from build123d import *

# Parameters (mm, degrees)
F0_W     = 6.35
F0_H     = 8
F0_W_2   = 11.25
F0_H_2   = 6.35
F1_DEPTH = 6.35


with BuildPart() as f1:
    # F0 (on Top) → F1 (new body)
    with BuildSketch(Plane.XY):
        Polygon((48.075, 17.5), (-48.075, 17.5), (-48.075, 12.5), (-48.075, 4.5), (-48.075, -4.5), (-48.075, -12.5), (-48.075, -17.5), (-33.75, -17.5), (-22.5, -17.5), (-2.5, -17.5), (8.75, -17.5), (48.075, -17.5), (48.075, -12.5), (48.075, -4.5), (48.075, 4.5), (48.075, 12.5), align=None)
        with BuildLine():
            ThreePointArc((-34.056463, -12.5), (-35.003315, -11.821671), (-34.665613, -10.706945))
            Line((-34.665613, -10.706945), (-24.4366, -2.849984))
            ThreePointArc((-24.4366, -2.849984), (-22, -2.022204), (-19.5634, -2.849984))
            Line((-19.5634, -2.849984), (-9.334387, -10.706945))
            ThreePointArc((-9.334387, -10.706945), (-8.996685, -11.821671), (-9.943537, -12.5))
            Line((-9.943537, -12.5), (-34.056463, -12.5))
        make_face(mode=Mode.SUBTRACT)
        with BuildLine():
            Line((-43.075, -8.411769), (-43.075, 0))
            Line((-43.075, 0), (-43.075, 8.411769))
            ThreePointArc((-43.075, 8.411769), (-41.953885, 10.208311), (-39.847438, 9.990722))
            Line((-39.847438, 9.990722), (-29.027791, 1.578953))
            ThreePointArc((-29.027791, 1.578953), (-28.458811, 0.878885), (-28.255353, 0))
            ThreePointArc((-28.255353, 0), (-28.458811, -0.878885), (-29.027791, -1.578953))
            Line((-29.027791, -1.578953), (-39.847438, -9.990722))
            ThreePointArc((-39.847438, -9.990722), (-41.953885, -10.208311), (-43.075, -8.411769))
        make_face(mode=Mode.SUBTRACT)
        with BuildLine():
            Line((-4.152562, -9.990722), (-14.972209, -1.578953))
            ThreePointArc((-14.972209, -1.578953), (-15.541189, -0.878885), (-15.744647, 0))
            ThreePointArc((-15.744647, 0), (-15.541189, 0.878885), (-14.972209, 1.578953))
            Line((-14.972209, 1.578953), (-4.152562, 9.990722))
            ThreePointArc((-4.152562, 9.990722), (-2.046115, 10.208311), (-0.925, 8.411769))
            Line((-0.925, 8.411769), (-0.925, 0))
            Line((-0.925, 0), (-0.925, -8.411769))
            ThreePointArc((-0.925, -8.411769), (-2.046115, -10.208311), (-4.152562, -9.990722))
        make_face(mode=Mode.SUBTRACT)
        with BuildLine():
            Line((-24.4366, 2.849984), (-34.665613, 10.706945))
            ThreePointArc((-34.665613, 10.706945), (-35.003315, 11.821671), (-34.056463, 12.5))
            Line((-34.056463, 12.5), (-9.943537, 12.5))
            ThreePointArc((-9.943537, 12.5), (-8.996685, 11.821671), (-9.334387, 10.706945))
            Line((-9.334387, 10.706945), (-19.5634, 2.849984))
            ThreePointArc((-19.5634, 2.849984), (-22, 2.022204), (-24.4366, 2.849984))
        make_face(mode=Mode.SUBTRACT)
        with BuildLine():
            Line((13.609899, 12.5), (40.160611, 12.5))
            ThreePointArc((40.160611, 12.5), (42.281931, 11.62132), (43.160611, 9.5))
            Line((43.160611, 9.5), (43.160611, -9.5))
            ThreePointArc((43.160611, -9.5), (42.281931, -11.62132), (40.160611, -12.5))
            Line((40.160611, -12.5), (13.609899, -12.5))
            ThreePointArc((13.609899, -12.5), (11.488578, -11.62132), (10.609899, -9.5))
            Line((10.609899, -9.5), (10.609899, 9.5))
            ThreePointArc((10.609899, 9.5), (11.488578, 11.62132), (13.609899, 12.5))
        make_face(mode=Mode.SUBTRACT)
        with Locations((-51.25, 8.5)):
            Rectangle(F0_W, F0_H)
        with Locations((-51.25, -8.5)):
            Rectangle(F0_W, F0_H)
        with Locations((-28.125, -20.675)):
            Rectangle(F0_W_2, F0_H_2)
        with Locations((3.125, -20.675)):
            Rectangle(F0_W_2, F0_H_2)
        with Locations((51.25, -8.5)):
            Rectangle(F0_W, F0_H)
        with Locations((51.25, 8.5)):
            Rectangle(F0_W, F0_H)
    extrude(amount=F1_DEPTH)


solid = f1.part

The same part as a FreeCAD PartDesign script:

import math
import FreeCAD as App
import Part
import Sketcher
from FreeCAD import Vector
Q = App.Units.Quantity


def add_polygon(sketch, points):
    """Adds a closed chain of lines whose ends are joined by coincident constraints."""
    first, n = sketch.GeometryCount, len(points)
    for a, b in zip(points, points[1:] + points[:1]):
        sketch.addGeometry(Part.LineSegment(App.Vector(*a, 0), App.Vector(*b, 0)), False)
    for i in range(n):
        sketch.addConstraint(Sketcher.Constraint("Coincident", first + i, 2, first + (i + 1) % n, 1))

doc = App.newDocument("Part")
body = doc.addObject("PartDesign::Body", "Body")

# Sketch on XY plane
sketch1 = body.newObject("Sketcher::SketchObject", "Sketch")
sketch1.AttachmentSupport = (doc.getObject("XY_Plane"), [""])
sketch1.MapMode = "FlatFace"
add_polygon(sketch1, [(48.1, 17.5), (-48.1, 17.5), (-48.1, 12.5), (-54.4, 12.5), (-54.4, 4.5), (-48.1, 4.5), (-48.1, -4.5), (-54.4, -4.5), (-54.4, -12.5), (-48.1, -12.5), (-48.1, -17.5), (-33.8, -17.5), (-33.8, -23.9), (-22.5, -23.9), (-22.5, -17.5), (-2.5, -17.5), (-2.5, -23.9), (8.8, -23.9), (8.8, -17.5), (48.1, -17.5), (48.1, -12.5), (54.4, -12.5), (54.4, -4.5), (48.1, -4.5), (48.1, 4.5), (54.4, 4.5), (54.4, 12.5), (48.1, 12.5)])  # lines 0-27
sketch1.addGeometry(Part.LineSegment(Vector(-9.9, -12.5, 0), Vector(-34.1, -12.5, 0)), False)  # 28
sketch1.addGeometry(Part.ArcOfCircle(Part.Circle(Vector(-34.1, -11.5, 0), Vector(0, 0, 1), 1), math.radians(128), math.radians(270)), False)  # 29
sketch1.addGeometry(Part.LineSegment(Vector(-34.7, -10.7, 0), Vector(-24.4, -2.8, 0)), False)  # 30
sketch1.addGeometry(Part.ArcOfCircle(Part.Circle(Vector(-22, -6, 0), Vector(0, 0, 1), 4), math.radians(52), math.radians(128)), False)  # 31
sketch1.addGeometry(Part.LineSegment(Vector(-19.6, -2.8, 0), Vector(-9.3, -10.7, 0)), False)  # 32
sketch1.addGeometry(Part.ArcOfCircle(Part.Circle(Vector(-9.9, -11.5, 0), Vector(0, 0, 1), 1), math.radians(-90), math.radians(52)), False)  # 33
sketch1.addGeometry(Part.ArcOfCircle(Part.Circle(Vector(-2.9, -8.4, 0), Vector(0, 0, 1), 2), math.radians(-128), math.radians(0)), False)  # 34
sketch1.addGeometry(Part.LineSegment(Vector(-4.2, -10, 0), Vector(-15, -1.6, 0)), False)  # 35
sketch1.addGeometry(Part.ArcOfCircle(Part.Circle(Vector(-13.7, 0, 0), Vector(0, 0, 1), 2), math.radians(180), math.radians(232)), False)  # 36
sketch1.addGeometry(Part.ArcOfCircle(Part.Circle(Vector(-13.7, 0, 0), Vector(0, 0, 1), 2), math.radians(128), math.radians(180)), False)  # 37
sketch1.addGeometry(Part.LineSegment(Vector(-15, 1.6, 0), Vector(-4.2, 10, 0)), False)  # 38
sketch1.addGeometry(Part.ArcOfCircle(Part.Circle(Vector(-2.9, 8.4, 0), Vector(0, 0, 1), 2), math.radians(0), math.radians(128)), False)  # 39
sketch1.addGeometry(Part.LineSegment(Vector(-0.9, 8.4, 0), Vector(-0.9, -8.4, 0)), False)  # 40
sketch1.addGeometry(Part.ArcOfCircle(Part.Circle(Vector(13.6, 9.5, 0), Vector(0, 0, 1), 3), math.radians(90), math.radians(180)), False)  # 41
sketch1.addGeometry(Part.LineSegment(Vector(13.6, 12.5, 0), Vector(40.2, 12.5, 0)), False)  # 42
sketch1.addGeometry(Part.ArcOfCircle(Part.Circle(Vector(40.2, 9.5, 0), Vector(0, 0, 1), 3), math.radians(0), math.radians(90)), False)  # 43
sketch1.addGeometry(Part.LineSegment(Vector(43.2, 9.5, 0), Vector(43.2, -9.5, 0)), False)  # 44
sketch1.addGeometry(Part.ArcOfCircle(Part.Circle(Vector(40.2, -9.5, 0), Vector(0, 0, 1), 3), math.radians(-90), math.radians(0)), False)  # 45
sketch1.addGeometry(Part.LineSegment(Vector(40.2, -12.5, 0), Vector(13.6, -12.5, 0)), False)  # 46
sketch1.addGeometry(Part.ArcOfCircle(Part.Circle(Vector(13.6, -9.5, 0), Vector(0, 0, 1), 3), math.radians(180), math.radians(270)), False)  # 47
sketch1.addGeometry(Part.LineSegment(Vector(10.6, -9.5, 0), Vector(10.6, 9.5, 0)), False)  # 48
sketch1.addGeometry(Part.ArcOfCircle(Part.Circle(Vector(-41.1, -8.4, 0), Vector(0, 0, 1), 2), math.radians(180), math.radians(308)), False)  # 49
sketch1.addGeometry(Part.LineSegment(Vector(-43.1, -8.4, 0), Vector(-43.1, 8.4, 0)), False)  # 50
sketch1.addGeometry(Part.ArcOfCircle(Part.Circle(Vector(-41.1, 8.4, 0), Vector(0, 0, 1), 2), math.radians(52), math.radians(180)), False)  # 51
sketch1.addGeometry(Part.LineSegment(Vector(-39.8, 10, 0), Vector(-29, 1.6, 0)), False)  # 52
sketch1.addGeometry(Part.ArcOfCircle(Part.Circle(Vector(-30.3, 0, 0), Vector(0, 0, 1), 2), math.radians(0), math.radians(52)), False)  # 53
sketch1.addGeometry(Part.ArcOfCircle(Part.Circle(Vector(-30.3, 0, 0), Vector(0, 0, 1), 2), math.radians(-52), math.radians(0)), False)  # 54
sketch1.addGeometry(Part.LineSegment(Vector(-29, -1.6, 0), Vector(-39.8, -10, 0)), False)  # 55
sketch1.addGeometry(Part.ArcOfCircle(Part.Circle(Vector(-22, 6, 0), Vector(0, 0, 1), 4), math.radians(-128), math.radians(-52)), False)  # 56
sketch1.addGeometry(Part.LineSegment(Vector(-24.4, 2.8, 0), Vector(-34.7, 10.7, 0)), False)  # 57
sketch1.addGeometry(Part.ArcOfCircle(Part.Circle(Vector(-34.1, 11.5, 0), Vector(0, 0, 1), 1), math.radians(90), math.radians(232)), False)  # 58
sketch1.addGeometry(Part.LineSegment(Vector(-34.1, 12.5, 0), Vector(-9.9, 12.5, 0)), False)  # 59
sketch1.addGeometry(Part.ArcOfCircle(Part.Circle(Vector(-9.9, 11.5, 0), Vector(0, 0, 1), 1), math.radians(-52), math.radians(90)), False)  # 60
sketch1.addGeometry(Part.LineSegment(Vector(-9.3, 10.7, 0), Vector(-19.6, 2.8, 0)), False)  # 61
sketch1.addConstraint(Sketcher.Constraint("Tangent", 28, 2, 29, 2))
sketch1.addConstraint(Sketcher.Constraint("Tangent", 29, 1, 30, 1))
sketch1.addConstraint(Sketcher.Constraint("Tangent", 30, 2, 31, 2))
sketch1.addConstraint(Sketcher.Constraint("Tangent", 31, 1, 32, 1))
sketch1.addConstraint(Sketcher.Constraint("Tangent", 32, 2, 33, 2))
sketch1.addConstraint(Sketcher.Constraint("Tangent", 33, 1, 28, 1))
sketch1.addConstraint(Sketcher.Constraint("Tangent", 34, 1, 35, 1))
sketch1.addConstraint(Sketcher.Constraint("Tangent", 35, 2, 36, 2))
sketch1.addConstraint(Sketcher.Constraint("Tangent", 36, 1, 37, 2))
sketch1.addConstraint(Sketcher.Constraint("Tangent", 37, 1, 38, 1))
sketch1.addConstraint(Sketcher.Constraint("Tangent", 38, 2, 39, 2))
sketch1.addConstraint(Sketcher.Constraint("Tangent", 39, 1, 40, 1))
sketch1.addConstraint(Sketcher.Constraint("Tangent", 40, 2, 34, 2))
sketch1.addConstraint(Sketcher.Constraint("Tangent", 41, 1, 42, 1))
sketch1.addConstraint(Sketcher.Constraint("Tangent", 42, 2, 43, 2))
sketch1.addConstraint(Sketcher.Constraint("Tangent", 43, 1, 44, 1))
sketch1.addConstraint(Sketcher.Constraint("Tangent", 44, 2, 45, 2))
sketch1.addConstraint(Sketcher.Constraint("Tangent", 45, 1, 46, 1))
sketch1.addConstraint(Sketcher.Constraint("Tangent", 46, 2, 47, 2))
sketch1.addConstraint(Sketcher.Constraint("Tangent", 47, 1, 48, 1))
sketch1.addConstraint(Sketcher.Constraint("Tangent", 48, 2, 41, 2))
sketch1.addConstraint(Sketcher.Constraint("Tangent", 49, 1, 50, 1))
sketch1.addConstraint(Sketcher.Constraint("Tangent", 50, 2, 51, 2))
sketch1.addConstraint(Sketcher.Constraint("Tangent", 51, 1, 52, 1))
sketch1.addConstraint(Sketcher.Constraint("Tangent", 52, 2, 53, 2))
sketch1.addConstraint(Sketcher.Constraint("Tangent", 53, 1, 54, 2))
sketch1.addConstraint(Sketcher.Constraint("Tangent", 54, 1, 55, 1))
sketch1.addConstraint(Sketcher.Constraint("Tangent", 55, 2, 49, 2))
sketch1.addConstraint(Sketcher.Constraint("Tangent", 56, 1, 57, 1))
sketch1.addConstraint(Sketcher.Constraint("Tangent", 57, 2, 58, 2))
sketch1.addConstraint(Sketcher.Constraint("Tangent", 58, 1, 59, 1))
sketch1.addConstraint(Sketcher.Constraint("Tangent", 59, 2, 60, 2))
sketch1.addConstraint(Sketcher.Constraint("Tangent", 60, 1, 61, 1))
sketch1.addConstraint(Sketcher.Constraint("Tangent", 61, 2, 56, 2))
sketch1.addConstraint(Sketcher.Constraint("Horizontal", 0))
sketch1.addConstraint(Sketcher.Constraint("Vertical", 1))
sketch1.addConstraint(Sketcher.Constraint("Horizontal", 2))
sketch1.addConstraint(Sketcher.Constraint("Vertical", 3))
sketch1.addConstraint(Sketcher.Constraint("Horizontal", 4))
sketch1.addConstraint(Sketcher.Constraint("Vertical", 5))
sketch1.addConstraint(Sketcher.Constraint("Horizontal", 6))
sketch1.addConstraint(Sketcher.Constraint("Vertical", 7))
sketch1.addConstraint(Sketcher.Constraint("Horizontal", 8))
sketch1.addConstraint(Sketcher.Constraint("Vertical", 9))
sketch1.addConstraint(Sketcher.Constraint("Horizontal", 10))
sketch1.addConstraint(Sketcher.Constraint("Vertical", 11))
sketch1.addConstraint(Sketcher.Constraint("Horizontal", 12))
sketch1.addConstraint(Sketcher.Constraint("Vertical", 13))
sketch1.addConstraint(Sketcher.Constraint("Horizontal", 14))
sketch1.addConstraint(Sketcher.Constraint("Vertical", 15))
sketch1.addConstraint(Sketcher.Constraint("Horizontal", 16))
sketch1.addConstraint(Sketcher.Constraint("Vertical", 17))
sketch1.addConstraint(Sketcher.Constraint("Horizontal", 18))
sketch1.addConstraint(Sketcher.Constraint("Vertical", 19))
sketch1.addConstraint(Sketcher.Constraint("Horizontal", 20))
sketch1.addConstraint(Sketcher.Constraint("Vertical", 21))
sketch1.addConstraint(Sketcher.Constraint("Horizontal", 22))
sketch1.addConstraint(Sketcher.Constraint("Vertical", 23))
sketch1.addConstraint(Sketcher.Constraint("Horizontal", 24))
sketch1.addConstraint(Sketcher.Constraint("Vertical", 25))
sketch1.addConstraint(Sketcher.Constraint("Horizontal", 26))
sketch1.addConstraint(Sketcher.Constraint("Vertical", 27))
sketch1.addConstraint(Sketcher.Constraint("Horizontal", 28))
sketch1.addConstraint(Sketcher.Constraint("Vertical", 40))
sketch1.addConstraint(Sketcher.Constraint("Horizontal", 42))
sketch1.addConstraint(Sketcher.Constraint("Vertical", 44))
sketch1.addConstraint(Sketcher.Constraint("Horizontal", 46))
sketch1.addConstraint(Sketcher.Constraint("Vertical", 48))
sketch1.addConstraint(Sketcher.Constraint("Vertical", 50))
sketch1.addConstraint(Sketcher.Constraint("Horizontal", 59))
sketch1.addConstraint(Sketcher.Constraint("Equal", 29, 33))
sketch1.addConstraint(Sketcher.Constraint("Equal", 36, 37))
sketch1.addConstraint(Sketcher.Constraint("Equal", 34, 39))
sketch1.addConstraint(Sketcher.Constraint("Equal", 41, 43))
sketch1.addConstraint(Sketcher.Constraint("Equal", 43, 45))
sketch1.addConstraint(Sketcher.Constraint("Equal", 45, 47))
sketch1.addConstraint(Sketcher.Constraint("Equal", 39, 49))
sketch1.addConstraint(Sketcher.Constraint("Equal", 49, 51))
sketch1.addConstraint(Sketcher.Constraint("Equal", 37, 53))
sketch1.addConstraint(Sketcher.Constraint("Equal", 53, 54))
sketch1.addConstraint(Sketcher.Constraint("Equal", 31, 56))
sketch1.addConstraint(Sketcher.Constraint("Equal", 33, 58))
sketch1.addConstraint(Sketcher.Constraint("Equal", 58, 60))
sketch1.addConstraint(Sketcher.Constraint("Symmetric", 0, 2, 18, 2, -1, 1))
sketch1.addConstraint(Sketcher.Constraint("Symmetric", 2, 2, 20, 2, -1, 1))
sketch1.addConstraint(Sketcher.Constraint("Symmetric", 4, 2, 22, 2, -1, 1))
sketch1.addConstraint(Sketcher.Constraint("Symmetric", 6, 2, 24, 2, -1, 1))
sketch1.addConstraint(Sketcher.Constraint("Symmetric", 8, 2, 26, 2, -1, 1))
sketch1.addConstraint(Sketcher.Constraint("Symmetric", 9, 2, 18, 2, -2))
sketch1.addConstraint(Sketcher.Constraint("Symmetric", 7, 2, 20, 2, -2))
sketch1.addConstraint(Sketcher.Constraint("Symmetric", 31, 3, 56, 3, -1))
sketch1.addConstraint(Sketcher.Constraint("Symmetric", 29, 3, 58, 3, -1))
sketch1.addConstraint(Sketcher.Constraint("Symmetric", 35, 2, 37, 1, -1))
sketch1.addConstraint(Sketcher.Constraint("Symmetric", 52, 2, 54, 1, -1))
sketch1.addConstraint(Sketcher.Constraint("PointOnObject", 36, 1, -1))
sketch1.addConstraint(Sketcher.Constraint("PointOnObject", 53, 1, -1))
sketch1.addConstraint(Sketcher.Constraint("Parallel", 35, 52))
sketch1.addConstraint(Sketcher.Constraint("Parallel", 32, 57))
sketch1.addConstraint(Sketcher.Constraint("Parallel", 30, 61))
sketch1.addConstraint(Sketcher.Constraint("Horizontal", 34, 3, 49, 3))
sketch1.addConstraint(Sketcher.Constraint("Horizontal", 10, 2, 13, 2))
sketch1.addConstraint(Sketcher.Constraint("Horizontal", 12, 2, 15, 2))
sketch1.addConstraint(Sketcher.Constraint("Horizontal", 6, 2, 21, 2))
sketch1.addConstraint(Sketcher.Constraint("Horizontal", 20, 2, 28, 2))
sketch1.addConstraint(Sketcher.Constraint("Horizontal", 26, 2, 41, 1))
sketch1.addConstraint(Sketcher.Constraint("Horizontal", 33, 1, 45, 1))
sketch1.addConstraint(Sketcher.Constraint("Vertical", 1, 2, 4, 2))
sketch1.addConstraint(Sketcher.Constraint("Equal", 12, 16))
sketch1.addConstraint(Sketcher.Constraint("Equal", 26, 11))
sketch1.addConstraint(Sketcher.Constraint("Radius", 29, Q("1 mm")))
sketch1.addConstraint(Sketcher.Constraint("Radius", 31, Q("4 mm")))
sketch1.addConstraint(Sketcher.Constraint("Radius", 34, Q("2 mm")))
sketch1.addConstraint(Sketcher.Constraint("Radius", 41, Q("2.999999 mm")))
sketch1.addConstraint(Sketcher.Constraint("DistanceX", 14, 1, 14, 2, Q("20 mm")))
sketch1.addConstraint(Sketcher.Constraint("DistanceY", 1, 2, 1, 1, Q("5 mm")))
sketch1.addConstraint(Sketcher.Constraint("DistanceY", 3, 2, 3, 1, Q("8 mm")))
sketch1.addConstraint(Sketcher.Constraint("DistanceY", 5, 2, 5, 1, Q("9 mm")))
sketch1.addConstraint(Sketcher.Constraint("DistanceX", 31, 3, -1, 1, Q("22 mm")))
sketch1.addConstraint(Sketcher.Constraint("DistanceX", 0, 2, 0, 1, Q("96.15 mm")))
sketch1.addConstraint(Sketcher.Constraint("DistanceX", 2, 2, 2, 1, Q("6.35 mm")))
sketch1.addConstraint(Sketcher.Constraint("DistanceX", 12, 1, 12, 2, Q("11.25 mm")))
sketch1.addConstraint(Sketcher.Constraint("DistanceX", 12, 2, -1, 1, Q("22.5 mm")))
sketch1.addConstraint(Sketcher.Constraint("DistanceX", 34, 3, -1, 1, Q("2.925 mm")))
sketch1.addConstraint(Sketcher.Constraint("DistanceX", 49, 3, -1, 1, Q("41.075 mm")))
sketch1.addConstraint(Sketcher.Constraint("Radius", 36, Q("1.999997 mm")))
sketch1.addConstraint(Sketcher.Constraint("DistanceX", -1, 1, 41, 3, Q("13.609898 mm")))
sketch1.addConstraint(Sketcher.Constraint("DistanceX", 30, 2, -1, 1, Q("24.4366 mm")))
sketch1.addConstraint(Sketcher.Constraint("Distance", 35, Q("13.704839 mm")))
sketch1.addConstraint(Sketcher.Constraint("DistanceX", 28, 2, 28, 1, Q("24.112926 mm")))
sketch1.addConstraint(Sketcher.Constraint("DistanceX", 42, 1, 42, 2, Q("26.550712 mm")))
sketch1.addConstraint(Sketcher.Constraint("DistanceY", 40, 2, 40, 1, Q("16.823538 mm")))
pad1 = body.newObject("PartDesign::Pad", "Pad")
pad1.Profile = sketch1
pad1.Length = 6.35

doc.recompute()
